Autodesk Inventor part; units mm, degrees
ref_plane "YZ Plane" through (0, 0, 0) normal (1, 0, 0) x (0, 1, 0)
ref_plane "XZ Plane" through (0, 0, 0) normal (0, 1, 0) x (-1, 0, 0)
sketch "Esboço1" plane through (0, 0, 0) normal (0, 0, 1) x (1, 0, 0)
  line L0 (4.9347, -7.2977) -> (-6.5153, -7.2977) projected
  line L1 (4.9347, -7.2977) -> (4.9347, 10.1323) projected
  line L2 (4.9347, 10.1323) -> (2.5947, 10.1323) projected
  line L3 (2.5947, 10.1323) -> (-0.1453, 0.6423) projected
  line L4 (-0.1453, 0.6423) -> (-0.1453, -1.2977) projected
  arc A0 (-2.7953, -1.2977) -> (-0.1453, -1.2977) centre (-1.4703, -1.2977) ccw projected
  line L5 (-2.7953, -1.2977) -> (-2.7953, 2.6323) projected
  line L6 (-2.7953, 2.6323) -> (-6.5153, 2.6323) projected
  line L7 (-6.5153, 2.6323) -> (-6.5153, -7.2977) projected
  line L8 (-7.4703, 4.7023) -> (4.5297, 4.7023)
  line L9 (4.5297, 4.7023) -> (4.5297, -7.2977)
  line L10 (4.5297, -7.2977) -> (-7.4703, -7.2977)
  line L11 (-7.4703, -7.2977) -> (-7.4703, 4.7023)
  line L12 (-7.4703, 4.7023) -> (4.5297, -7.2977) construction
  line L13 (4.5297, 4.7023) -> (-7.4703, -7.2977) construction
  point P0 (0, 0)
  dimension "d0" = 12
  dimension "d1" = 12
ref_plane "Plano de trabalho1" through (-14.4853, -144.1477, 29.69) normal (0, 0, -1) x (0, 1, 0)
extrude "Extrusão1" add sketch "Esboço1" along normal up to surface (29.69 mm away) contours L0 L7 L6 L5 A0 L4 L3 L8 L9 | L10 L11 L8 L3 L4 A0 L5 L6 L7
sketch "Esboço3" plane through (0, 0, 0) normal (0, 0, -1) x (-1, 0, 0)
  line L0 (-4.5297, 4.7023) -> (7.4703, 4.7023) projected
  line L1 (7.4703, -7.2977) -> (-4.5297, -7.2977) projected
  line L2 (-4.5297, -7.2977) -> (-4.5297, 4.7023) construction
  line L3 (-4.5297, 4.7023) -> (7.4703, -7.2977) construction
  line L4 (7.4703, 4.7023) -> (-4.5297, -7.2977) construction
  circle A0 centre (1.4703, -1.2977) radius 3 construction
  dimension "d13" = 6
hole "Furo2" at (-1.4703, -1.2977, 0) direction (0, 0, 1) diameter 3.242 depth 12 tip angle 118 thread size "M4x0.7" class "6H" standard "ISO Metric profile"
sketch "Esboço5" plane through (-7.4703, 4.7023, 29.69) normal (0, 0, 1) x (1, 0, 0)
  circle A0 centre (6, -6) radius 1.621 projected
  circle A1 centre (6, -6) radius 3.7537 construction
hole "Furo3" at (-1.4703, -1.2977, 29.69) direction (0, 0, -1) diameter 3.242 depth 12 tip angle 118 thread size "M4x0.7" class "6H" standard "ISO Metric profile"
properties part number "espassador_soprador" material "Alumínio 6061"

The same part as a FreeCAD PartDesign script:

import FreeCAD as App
import Part
import Sketcher

V = App.Vector
Q = App.Units.Quantity


def add_polygon(sketch, points):
    """Adds a closed chain of lines whose ends are joined by coincident constraints."""
    first, n = sketch.GeometryCount, len(points)
    for a, b in zip(points, points[1:] + points[:1]):
        sketch.addGeometry(Part.LineSegment(App.Vector(*a, 0), App.Vector(*b, 0)), False)
    for i in range(n):
        sketch.addConstraint(Sketcher.Constraint("Coincident", first + i, 2, first + (i + 1) % n, 1))

doc = App.newDocument("Part")
params = doc.addObject("Spreadsheet::Sheet", "Params")
for row, (alias, value) in enumerate([
    ("sketch1_width", "12 mm"),
    ("pad1_length", "29.69 mm"),
    ("hole_diameter", "3.242 mm"),
    ("hole_depth", "12 mm"),
    ("hole2_diameter", "3.242 mm"),
    ("hole2_depth", "12 mm"),
], start=1):
    params.set(f"A{row}", alias)
    params.set(f"B{row}", "=" + value)
    params.setAlias(f"B{row}", alias)

body = doc.addObject("PartDesign::Body", "Body")

sketch1 = body.newObject("Sketcher::SketchObject", "Sketch")
sketch1.AttachmentSupport = (doc.getObject("XY_Plane"), [""])
sketch1.MapMode = "FlatFace"
add_polygon(sketch1, [(4.5297, -7.2977), (4.5297, 4.7023), (-7.4703, 4.7023), (-7.4703, -7.2977)])
sketch1.addConstraint(Sketcher.Constraint("Vertical", 0))
sketch1.addConstraint(Sketcher.Constraint("Horizontal", 1))
sketch1.addConstraint(Sketcher.Constraint("Vertical", 2))
sketch1.addConstraint(Sketcher.Constraint("Horizontal", 3))
sketch1.addConstraint(Sketcher.Constraint("Equal", 3, 0))
sketch1.addConstraint(Sketcher.Constraint("DistanceX", 1, 2, 1, 1, Q("12 mm")))
sketch1.addConstraint(Sketcher.Constraint("DistanceX", -1, 1, 0, 2, Q("4.5297 mm")))
sketch1.addConstraint(Sketcher.Constraint("DistanceY", -1, 1, 0, 2, Q("4.7023 mm")))
sketch1.setExpression("Constraints[9]", "Params.sketch1_width")
pad1 = body.newObject("PartDesign::Pad", "Pad")
pad1.Profile = sketch1
pad1.setExpression("Length", "Params.pad1_length")

sketch2 = body.newObject("Sketcher::SketchObject", "Sketch001")
sketch2.AttachmentSupport = (doc.getObject("XY_Plane"), [""])
sketch2.MapMode = "FlatFace"
sketch2.addGeometry(Part.Circle(V(-1.4703, -1.2977, 0), V(0, 0, 1), 1.621), False)
sketch2.addConstraint(Sketcher.Constraint("Diameter", 0, Q("3.242 mm")))
sketch2.addConstraint(Sketcher.Constraint("DistanceX", 0, 3, -1, 1, Q("1.4703 mm")))
sketch2.addConstraint(Sketcher.Constraint("DistanceY", 0, 3, -1, 1, Q("1.2977 mm")))
doc.recompute()
hole = body.newObject("PartDesign::Hole", "Hole")
hole.Profile = sketch2
hole.ThreadType = "None"
hole.setExpression("Diameter", "Params.hole_diameter")
hole.DepthType = "Dimension"
hole.setExpression("Depth", "Params.hole_depth")
hole.DrillPoint = "Angled"
hole.DrillPointAngle = 118
hole.Reversed = True

sketch3 = body.newObject("Sketcher::SketchObject", "Sketch002")
sketch3.AttachmentSupport = (doc.getObject("XY_Plane"), [""])
sketch3.MapMode = "FlatFace"
sketch3.AttachmentOffset = App.Placement(V(0, 0, 29.69), App.Rotation())
sketch3.addGeometry(Part.Circle(V(-1.4703, -1.2977, 0), V(0, 0, 1), 1.621), False)
sketch3.addConstraint(Sketcher.Constraint("Diameter", 0, Q("3.242 mm")))
sketch3.addConstraint(Sketcher.Constraint("DistanceX", 0, 3, -1, 1, Q("1.4703 mm")))
sketch3.addConstraint(Sketcher.Constraint("DistanceY", 0, 3, -1, 1, Q("1.2977 mm")))
doc.recompute()
hole2 = body.newObject("PartDesign::Hole", "Hole001")
hole2.Profile = sketch3
hole2.ThreadType = "None"
hole2.setExpression("Diameter", "Params.hole2_diameter")
hole2.DepthType = "Dimension"
hole2.setExpression("Depth", "Params.hole2_depth")
hole2.DrillPoint = "Angled"
hole2.DrillPointAngle = 118

doc.recompute()
